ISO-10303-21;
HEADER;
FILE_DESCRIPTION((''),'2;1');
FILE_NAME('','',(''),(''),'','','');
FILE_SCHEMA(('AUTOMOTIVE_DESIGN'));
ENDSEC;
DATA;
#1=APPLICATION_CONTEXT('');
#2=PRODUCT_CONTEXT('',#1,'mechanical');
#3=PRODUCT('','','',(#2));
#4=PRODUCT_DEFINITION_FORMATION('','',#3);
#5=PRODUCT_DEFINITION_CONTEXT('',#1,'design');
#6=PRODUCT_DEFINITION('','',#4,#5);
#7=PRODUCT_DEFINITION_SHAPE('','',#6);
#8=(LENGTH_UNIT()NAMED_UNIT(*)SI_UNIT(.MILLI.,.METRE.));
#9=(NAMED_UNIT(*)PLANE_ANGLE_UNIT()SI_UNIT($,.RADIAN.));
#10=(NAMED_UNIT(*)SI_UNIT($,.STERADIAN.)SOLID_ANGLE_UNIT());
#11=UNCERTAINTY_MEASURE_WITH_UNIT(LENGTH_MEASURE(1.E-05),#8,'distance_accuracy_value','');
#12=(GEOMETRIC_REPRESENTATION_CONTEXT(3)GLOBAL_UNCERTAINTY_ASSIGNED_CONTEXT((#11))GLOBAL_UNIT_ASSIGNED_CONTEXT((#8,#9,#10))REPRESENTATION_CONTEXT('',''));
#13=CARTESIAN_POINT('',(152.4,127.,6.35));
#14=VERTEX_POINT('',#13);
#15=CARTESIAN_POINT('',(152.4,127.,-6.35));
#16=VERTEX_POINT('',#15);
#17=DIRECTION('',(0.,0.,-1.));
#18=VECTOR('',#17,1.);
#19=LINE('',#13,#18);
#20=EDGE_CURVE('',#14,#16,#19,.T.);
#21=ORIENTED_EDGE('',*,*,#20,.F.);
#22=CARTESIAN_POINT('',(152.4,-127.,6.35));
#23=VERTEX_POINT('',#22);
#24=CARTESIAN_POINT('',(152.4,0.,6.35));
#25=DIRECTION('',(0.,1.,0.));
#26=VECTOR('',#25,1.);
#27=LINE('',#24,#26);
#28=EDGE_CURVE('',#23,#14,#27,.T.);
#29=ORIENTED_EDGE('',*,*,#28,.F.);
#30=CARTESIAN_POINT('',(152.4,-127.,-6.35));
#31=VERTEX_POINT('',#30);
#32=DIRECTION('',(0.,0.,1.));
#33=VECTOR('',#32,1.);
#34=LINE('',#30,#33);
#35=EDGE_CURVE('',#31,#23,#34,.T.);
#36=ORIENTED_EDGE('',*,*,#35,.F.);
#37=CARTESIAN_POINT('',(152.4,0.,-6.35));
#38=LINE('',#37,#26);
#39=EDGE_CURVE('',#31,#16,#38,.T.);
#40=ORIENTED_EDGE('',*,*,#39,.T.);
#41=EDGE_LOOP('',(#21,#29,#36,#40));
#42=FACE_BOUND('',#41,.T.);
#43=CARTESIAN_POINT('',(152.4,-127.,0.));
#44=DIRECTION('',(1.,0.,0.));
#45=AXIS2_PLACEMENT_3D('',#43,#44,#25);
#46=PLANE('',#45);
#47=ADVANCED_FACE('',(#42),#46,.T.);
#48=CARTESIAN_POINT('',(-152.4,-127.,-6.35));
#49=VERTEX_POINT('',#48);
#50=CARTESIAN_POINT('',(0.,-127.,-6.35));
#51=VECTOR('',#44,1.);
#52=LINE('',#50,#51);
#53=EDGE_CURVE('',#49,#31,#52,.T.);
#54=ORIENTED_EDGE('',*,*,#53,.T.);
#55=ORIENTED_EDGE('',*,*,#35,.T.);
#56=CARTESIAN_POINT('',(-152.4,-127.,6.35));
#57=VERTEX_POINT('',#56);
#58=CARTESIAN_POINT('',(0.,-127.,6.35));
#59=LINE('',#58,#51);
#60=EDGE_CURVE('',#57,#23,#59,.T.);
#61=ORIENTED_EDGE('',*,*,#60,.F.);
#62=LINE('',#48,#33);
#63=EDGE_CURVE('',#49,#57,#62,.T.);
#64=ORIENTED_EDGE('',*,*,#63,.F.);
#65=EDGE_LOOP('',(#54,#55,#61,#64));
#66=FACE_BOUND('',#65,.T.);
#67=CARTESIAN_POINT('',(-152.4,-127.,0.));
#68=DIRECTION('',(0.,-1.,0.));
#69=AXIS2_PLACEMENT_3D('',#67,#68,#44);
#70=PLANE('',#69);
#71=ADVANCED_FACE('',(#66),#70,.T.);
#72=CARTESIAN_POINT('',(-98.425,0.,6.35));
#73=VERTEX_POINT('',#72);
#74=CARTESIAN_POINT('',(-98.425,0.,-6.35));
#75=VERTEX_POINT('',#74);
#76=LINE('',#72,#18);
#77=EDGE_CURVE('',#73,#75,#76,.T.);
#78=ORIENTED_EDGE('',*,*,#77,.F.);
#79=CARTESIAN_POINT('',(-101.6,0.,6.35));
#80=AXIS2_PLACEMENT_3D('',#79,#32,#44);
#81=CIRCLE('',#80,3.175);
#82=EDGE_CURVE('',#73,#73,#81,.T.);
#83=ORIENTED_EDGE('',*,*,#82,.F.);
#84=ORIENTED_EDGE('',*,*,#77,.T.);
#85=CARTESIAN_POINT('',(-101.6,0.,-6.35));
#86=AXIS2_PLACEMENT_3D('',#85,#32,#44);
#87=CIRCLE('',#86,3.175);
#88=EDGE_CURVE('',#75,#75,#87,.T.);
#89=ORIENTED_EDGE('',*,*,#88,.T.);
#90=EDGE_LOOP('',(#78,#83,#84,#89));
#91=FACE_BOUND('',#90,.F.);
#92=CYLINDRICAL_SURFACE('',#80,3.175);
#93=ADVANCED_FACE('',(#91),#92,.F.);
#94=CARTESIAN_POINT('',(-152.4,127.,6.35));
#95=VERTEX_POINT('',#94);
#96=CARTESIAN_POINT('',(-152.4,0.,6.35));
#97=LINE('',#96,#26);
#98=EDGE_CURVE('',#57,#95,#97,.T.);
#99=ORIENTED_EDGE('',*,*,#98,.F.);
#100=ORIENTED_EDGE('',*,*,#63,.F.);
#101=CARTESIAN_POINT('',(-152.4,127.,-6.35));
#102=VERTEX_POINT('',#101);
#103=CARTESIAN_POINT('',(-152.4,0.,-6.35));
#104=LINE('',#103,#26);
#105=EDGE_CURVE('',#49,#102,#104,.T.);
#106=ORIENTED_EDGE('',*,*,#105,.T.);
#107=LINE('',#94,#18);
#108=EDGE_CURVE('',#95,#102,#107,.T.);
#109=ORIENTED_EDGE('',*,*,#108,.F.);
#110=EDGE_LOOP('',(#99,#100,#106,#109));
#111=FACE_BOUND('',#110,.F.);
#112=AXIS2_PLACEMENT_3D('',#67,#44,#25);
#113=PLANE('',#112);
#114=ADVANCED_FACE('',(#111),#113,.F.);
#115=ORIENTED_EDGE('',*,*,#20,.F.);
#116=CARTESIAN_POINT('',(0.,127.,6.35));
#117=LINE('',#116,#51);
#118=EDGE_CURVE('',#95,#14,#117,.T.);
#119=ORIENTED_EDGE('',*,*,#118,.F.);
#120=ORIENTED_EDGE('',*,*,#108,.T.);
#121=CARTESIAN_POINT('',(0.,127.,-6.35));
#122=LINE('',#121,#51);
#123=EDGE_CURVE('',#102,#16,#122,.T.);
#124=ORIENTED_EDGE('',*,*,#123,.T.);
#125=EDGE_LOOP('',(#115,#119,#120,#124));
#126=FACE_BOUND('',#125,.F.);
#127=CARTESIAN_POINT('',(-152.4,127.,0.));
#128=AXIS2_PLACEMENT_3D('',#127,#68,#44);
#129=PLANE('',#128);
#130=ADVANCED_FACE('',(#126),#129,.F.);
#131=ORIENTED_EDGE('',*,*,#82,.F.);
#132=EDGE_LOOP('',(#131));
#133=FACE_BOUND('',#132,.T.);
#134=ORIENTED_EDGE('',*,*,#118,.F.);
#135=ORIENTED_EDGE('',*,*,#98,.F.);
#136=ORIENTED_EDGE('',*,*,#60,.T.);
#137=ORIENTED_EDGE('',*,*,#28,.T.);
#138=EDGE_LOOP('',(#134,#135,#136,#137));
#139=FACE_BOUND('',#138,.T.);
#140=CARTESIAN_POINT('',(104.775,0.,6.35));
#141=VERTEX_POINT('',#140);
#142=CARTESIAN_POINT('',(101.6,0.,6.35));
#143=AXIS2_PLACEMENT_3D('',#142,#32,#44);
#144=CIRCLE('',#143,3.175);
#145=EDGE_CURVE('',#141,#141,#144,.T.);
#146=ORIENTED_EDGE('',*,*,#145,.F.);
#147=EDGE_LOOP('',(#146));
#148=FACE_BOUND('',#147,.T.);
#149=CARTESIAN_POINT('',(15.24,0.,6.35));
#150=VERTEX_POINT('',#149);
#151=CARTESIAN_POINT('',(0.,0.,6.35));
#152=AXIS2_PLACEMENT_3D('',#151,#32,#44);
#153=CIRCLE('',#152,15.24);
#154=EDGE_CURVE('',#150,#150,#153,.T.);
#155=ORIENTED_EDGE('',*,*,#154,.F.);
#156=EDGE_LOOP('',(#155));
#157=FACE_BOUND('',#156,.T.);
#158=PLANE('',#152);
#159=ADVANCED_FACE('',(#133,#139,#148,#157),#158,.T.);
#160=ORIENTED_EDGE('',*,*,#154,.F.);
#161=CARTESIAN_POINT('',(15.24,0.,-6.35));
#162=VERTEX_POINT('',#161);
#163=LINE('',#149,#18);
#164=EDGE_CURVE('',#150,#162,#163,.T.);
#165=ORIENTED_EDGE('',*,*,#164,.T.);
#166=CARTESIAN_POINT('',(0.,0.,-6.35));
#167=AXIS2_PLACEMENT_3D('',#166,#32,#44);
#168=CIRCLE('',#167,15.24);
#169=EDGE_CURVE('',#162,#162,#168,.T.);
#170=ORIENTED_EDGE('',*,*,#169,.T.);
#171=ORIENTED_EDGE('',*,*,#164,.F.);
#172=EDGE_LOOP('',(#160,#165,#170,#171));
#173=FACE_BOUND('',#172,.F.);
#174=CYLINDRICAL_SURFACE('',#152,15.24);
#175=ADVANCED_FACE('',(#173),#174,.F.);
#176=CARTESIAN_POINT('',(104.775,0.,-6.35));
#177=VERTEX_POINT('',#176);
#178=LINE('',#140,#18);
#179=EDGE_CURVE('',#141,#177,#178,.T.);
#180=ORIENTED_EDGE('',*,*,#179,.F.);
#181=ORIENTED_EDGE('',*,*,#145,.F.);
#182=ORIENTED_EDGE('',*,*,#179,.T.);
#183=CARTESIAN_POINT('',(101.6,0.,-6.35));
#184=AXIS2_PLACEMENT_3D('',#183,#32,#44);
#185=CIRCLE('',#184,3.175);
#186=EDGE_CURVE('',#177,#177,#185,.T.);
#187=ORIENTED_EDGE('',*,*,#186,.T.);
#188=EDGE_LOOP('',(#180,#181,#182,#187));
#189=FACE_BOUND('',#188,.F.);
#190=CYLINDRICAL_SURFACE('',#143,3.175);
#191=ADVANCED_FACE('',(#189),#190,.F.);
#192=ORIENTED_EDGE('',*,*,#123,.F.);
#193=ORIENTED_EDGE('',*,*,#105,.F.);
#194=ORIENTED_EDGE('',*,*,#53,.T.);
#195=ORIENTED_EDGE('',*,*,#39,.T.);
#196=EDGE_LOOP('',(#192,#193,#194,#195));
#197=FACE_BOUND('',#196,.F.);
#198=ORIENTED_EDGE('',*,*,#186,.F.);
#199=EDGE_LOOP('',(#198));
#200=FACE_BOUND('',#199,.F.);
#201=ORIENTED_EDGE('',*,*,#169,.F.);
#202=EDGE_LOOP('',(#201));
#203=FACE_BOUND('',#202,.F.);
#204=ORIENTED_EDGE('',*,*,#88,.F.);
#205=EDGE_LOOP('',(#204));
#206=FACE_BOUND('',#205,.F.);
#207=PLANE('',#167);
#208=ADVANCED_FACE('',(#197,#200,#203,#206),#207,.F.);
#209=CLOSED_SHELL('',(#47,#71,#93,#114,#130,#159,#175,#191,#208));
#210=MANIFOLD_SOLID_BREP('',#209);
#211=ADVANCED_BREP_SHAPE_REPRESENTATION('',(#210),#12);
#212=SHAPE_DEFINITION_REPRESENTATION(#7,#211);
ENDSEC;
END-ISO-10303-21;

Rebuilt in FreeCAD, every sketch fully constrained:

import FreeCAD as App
import Part
import Sketcher
Q = App.Units.Quantity

doc = App.newDocument("Part")
body = doc.addObject("PartDesign::Body", "Body")

sketch1 = doc.addObject("Sketcher::SketchObject", "Sketch")
body.addObject(sketch1)
sketch1.AttachmentSupport = (doc.XY_Plane, [""])
sketch1.MapMode = "FlatFace"
sketch1.addGeometry([
    Part.LineSegment(App.Vector(-152, 127, 0), App.Vector(-152, -127, 0)),
    Part.LineSegment(App.Vector(-152, -127, 0), App.Vector(152, -127, 0)),
    Part.LineSegment(App.Vector(152, -127, 0), App.Vector(152, 127, 0)),
    Part.LineSegment(App.Vector(152, 127, 0), App.Vector(-152, 127, 0)),
], False)
sketch1.addConstraint([
    Sketcher.Constraint("Coincident", 0, 2, 1, 1),
    Sketcher.Constraint("Coincident", 1, 2, 2, 1),
    Sketcher.Constraint("Coincident", 2, 2, 3, 1),
    Sketcher.Constraint("Coincident", 3, 2, 0, 1),
    Sketcher.Constraint("Vertical", 0),
    Sketcher.Constraint("Horizontal", 1),
    Sketcher.Constraint("Vertical", 2),
    Sketcher.Constraint("Horizontal", 3),
    Sketcher.Constraint("Symmetric", 0, 2, 2, 2, -1, 1),
    Sketcher.Constraint("DistanceX", 1, 1, 1, 2, Q("12 in")),
    Sketcher.Constraint("DistanceY", 0, 2, 0, 1, Q("10 in")),
])
pad1 = doc.addObject("PartDesign::Pad", "Pad")
body.addObject(pad1)
pad1.Profile = sketch1
pad1.Length = Q("0.5 in")
pad1.Midplane = True

sketch2 = doc.addObject("Sketcher::SketchObject", "Sketch001")
body.addObject(sketch2)
sketch2.AttachmentSupport = (doc.XY_Plane, [""])
sketch2.MapMode = "FlatFace"
sketch2.AttachmentOffset = App.Placement(App.Vector(0, 0, 0.25 * 25.4), App.Rotation())
sketch2.addGeometry(Part.Circle(App.Vector(0, 0, 0), App.Vector(0, 0, 1), 15), False)
sketch2.addConstraint([
    Sketcher.Constraint("Coincident", 0, 3, -1, 1),
    Sketcher.Constraint("Diameter", 0, Q("1.2 in")),
])
pocket1 = doc.addObject("PartDesign::Pocket", "Pocket")
body.addObject(pocket1)
pocket1.Profile = sketch2
pocket1.Type = "ThroughAll"

sketch3 = doc.addObject("Sketcher::SketchObject", "Sketch002")
body.addObject(sketch3)
sketch3.AttachmentSupport = (doc.XY_Plane, [""])
sketch3.MapMode = "FlatFace"
sketch3.AttachmentOffset = App.Placement(App.Vector(0, 0, 0.25 * 25.4), App.Rotation())
sketch3.addGeometry([
    Part.Circle(App.Vector(-101.6, 0, 0), App.Vector(0, 0, 1), 3.2),
    Part.Circle(App.Vector(101.6, 0, 0), App.Vector(0, 0, 1), 3.2),
], False)
sketch3.addConstraint([
    Sketcher.Constraint("Equal", 0, 1),
    Sketcher.Constraint("Symmetric", 0, 3, 1, 3, -1, 1),
    Sketcher.Constraint("PointOnObject", 0, 3, -1),
    Sketcher.Constraint("Diameter", 0, Q("0.25 in")),
    Sketcher.Constraint("DistanceX", 0, 3, -1, 1, Q("4 in")),
])
pocket2 = doc.addObject("PartDesign::Pocket", "Pocket001")
body.addObject(pocket2)
pocket2.Profile = sketch3
pocket2.Type = "ThroughAll"

doc.recompute()
